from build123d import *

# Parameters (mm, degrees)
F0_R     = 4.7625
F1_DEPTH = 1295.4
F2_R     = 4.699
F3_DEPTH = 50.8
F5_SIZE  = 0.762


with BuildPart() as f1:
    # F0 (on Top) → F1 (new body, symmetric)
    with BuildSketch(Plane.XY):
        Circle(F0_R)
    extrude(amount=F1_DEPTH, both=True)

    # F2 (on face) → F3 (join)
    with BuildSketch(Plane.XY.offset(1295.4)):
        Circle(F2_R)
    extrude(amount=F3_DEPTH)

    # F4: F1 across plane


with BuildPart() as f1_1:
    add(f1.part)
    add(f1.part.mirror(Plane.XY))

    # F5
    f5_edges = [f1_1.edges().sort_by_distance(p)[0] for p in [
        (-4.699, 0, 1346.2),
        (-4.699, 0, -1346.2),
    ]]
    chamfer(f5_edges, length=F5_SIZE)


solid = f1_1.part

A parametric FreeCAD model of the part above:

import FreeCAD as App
import Part
import Sketcher
from FreeCAD import Vector
Q = App.Units.Quantity


def edges_at(feature, points):
    """Names of the edges that pass closest to the given points."""
    edges = feature.Shape.Edges
    near = lambda p: min(range(len(edges)), key=lambda i: edges[i].distToShape(Part.Vertex(*p))[0])
    return sorted({f"Edge{near(p) + 1}" for p in points})

doc = App.newDocument("Part")
body = doc.addObject("PartDesign::Body", "Body")

# Sketch on XY plane
sketch1 = doc.addObject("Sketcher::SketchObject", "Sketch")
body.addObject(sketch1)
sketch1.AttachmentSupport = (doc.XY_Plane, [""])
sketch1.MapMode = "FlatFace"
sketch1.addGeometry(Part.Circle(Vector(0, 0, 0), Vector(0, 0, 1), 4.8), False)
sketch1.addConstraint([
    Sketcher.Constraint("Coincident", 0, 3, -1, 1),
    Sketcher.Constraint("Diameter", 0, Q("0.375 in")),
])
pad1 = doc.addObject("PartDesign::Pad", "Pad")
body.addObject(pad1)
pad1.Profile = sketch1
pad1.Length = Q("102 in")
pad1.Midplane = True

# Sketch on XY plane
sketch2 = doc.addObject("Sketcher::SketchObject", "Sketch001")
body.addObject(sketch2)
sketch2.AttachmentSupport = (doc.XY_Plane, [""])
sketch2.MapMode = "FlatFace"
sketch2.AttachmentOffset = App.Placement(Vector(0, 0, 51 * 25.4), App.Rotation())
sketch2.addGeometry(Part.Circle(Vector(0, 0, 0), Vector(0, 0, 1), 4.7), False)
sketch2.addConstraint([
    Sketcher.Constraint("Coincident", 0, 3, -1, 1),
    Sketcher.Constraint("Diameter", 0, Q("0.37 in")),
])
pad2 = doc.addObject("PartDesign::Pad", "Pad001")
body.addObject(pad2)
pad2.Profile = sketch2
pad2.Length = Q("2 in")
body2 = doc.addObject("PartDesign::Body", "Body001")
doc.recompute()

body2.BaseFeature = body
doc.recompute()

mirroring = doc.addObject("Part::Mirroring", "Mirroring")
mirroring.Source = body
mirroring.Base = Vector(0, 0, 0)
mirroring.Normal = Vector(0, 0, 1)
body3 = doc.addObject("PartDesign::Body", "Body002")
body3.BaseFeature = mirroring
boolean = doc.addObject("PartDesign::Boolean", "Boolean")
body2.addObject(boolean)
boolean.Type = "Fuse"
boolean.addObjects([body3])
doc.recompute()

chamfer = doc.addObject("PartDesign::Chamfer", "Chamfer")
body2.addObject(chamfer)
chamfer.Base = (boolean, edges_at(boolean, [(-4.699, 0, 1346.2), (-4.699, 0, -1346.2)]))
chamfer.Size = Q("0.03 in")
mirroring.Visibility = False

doc.recompute()
